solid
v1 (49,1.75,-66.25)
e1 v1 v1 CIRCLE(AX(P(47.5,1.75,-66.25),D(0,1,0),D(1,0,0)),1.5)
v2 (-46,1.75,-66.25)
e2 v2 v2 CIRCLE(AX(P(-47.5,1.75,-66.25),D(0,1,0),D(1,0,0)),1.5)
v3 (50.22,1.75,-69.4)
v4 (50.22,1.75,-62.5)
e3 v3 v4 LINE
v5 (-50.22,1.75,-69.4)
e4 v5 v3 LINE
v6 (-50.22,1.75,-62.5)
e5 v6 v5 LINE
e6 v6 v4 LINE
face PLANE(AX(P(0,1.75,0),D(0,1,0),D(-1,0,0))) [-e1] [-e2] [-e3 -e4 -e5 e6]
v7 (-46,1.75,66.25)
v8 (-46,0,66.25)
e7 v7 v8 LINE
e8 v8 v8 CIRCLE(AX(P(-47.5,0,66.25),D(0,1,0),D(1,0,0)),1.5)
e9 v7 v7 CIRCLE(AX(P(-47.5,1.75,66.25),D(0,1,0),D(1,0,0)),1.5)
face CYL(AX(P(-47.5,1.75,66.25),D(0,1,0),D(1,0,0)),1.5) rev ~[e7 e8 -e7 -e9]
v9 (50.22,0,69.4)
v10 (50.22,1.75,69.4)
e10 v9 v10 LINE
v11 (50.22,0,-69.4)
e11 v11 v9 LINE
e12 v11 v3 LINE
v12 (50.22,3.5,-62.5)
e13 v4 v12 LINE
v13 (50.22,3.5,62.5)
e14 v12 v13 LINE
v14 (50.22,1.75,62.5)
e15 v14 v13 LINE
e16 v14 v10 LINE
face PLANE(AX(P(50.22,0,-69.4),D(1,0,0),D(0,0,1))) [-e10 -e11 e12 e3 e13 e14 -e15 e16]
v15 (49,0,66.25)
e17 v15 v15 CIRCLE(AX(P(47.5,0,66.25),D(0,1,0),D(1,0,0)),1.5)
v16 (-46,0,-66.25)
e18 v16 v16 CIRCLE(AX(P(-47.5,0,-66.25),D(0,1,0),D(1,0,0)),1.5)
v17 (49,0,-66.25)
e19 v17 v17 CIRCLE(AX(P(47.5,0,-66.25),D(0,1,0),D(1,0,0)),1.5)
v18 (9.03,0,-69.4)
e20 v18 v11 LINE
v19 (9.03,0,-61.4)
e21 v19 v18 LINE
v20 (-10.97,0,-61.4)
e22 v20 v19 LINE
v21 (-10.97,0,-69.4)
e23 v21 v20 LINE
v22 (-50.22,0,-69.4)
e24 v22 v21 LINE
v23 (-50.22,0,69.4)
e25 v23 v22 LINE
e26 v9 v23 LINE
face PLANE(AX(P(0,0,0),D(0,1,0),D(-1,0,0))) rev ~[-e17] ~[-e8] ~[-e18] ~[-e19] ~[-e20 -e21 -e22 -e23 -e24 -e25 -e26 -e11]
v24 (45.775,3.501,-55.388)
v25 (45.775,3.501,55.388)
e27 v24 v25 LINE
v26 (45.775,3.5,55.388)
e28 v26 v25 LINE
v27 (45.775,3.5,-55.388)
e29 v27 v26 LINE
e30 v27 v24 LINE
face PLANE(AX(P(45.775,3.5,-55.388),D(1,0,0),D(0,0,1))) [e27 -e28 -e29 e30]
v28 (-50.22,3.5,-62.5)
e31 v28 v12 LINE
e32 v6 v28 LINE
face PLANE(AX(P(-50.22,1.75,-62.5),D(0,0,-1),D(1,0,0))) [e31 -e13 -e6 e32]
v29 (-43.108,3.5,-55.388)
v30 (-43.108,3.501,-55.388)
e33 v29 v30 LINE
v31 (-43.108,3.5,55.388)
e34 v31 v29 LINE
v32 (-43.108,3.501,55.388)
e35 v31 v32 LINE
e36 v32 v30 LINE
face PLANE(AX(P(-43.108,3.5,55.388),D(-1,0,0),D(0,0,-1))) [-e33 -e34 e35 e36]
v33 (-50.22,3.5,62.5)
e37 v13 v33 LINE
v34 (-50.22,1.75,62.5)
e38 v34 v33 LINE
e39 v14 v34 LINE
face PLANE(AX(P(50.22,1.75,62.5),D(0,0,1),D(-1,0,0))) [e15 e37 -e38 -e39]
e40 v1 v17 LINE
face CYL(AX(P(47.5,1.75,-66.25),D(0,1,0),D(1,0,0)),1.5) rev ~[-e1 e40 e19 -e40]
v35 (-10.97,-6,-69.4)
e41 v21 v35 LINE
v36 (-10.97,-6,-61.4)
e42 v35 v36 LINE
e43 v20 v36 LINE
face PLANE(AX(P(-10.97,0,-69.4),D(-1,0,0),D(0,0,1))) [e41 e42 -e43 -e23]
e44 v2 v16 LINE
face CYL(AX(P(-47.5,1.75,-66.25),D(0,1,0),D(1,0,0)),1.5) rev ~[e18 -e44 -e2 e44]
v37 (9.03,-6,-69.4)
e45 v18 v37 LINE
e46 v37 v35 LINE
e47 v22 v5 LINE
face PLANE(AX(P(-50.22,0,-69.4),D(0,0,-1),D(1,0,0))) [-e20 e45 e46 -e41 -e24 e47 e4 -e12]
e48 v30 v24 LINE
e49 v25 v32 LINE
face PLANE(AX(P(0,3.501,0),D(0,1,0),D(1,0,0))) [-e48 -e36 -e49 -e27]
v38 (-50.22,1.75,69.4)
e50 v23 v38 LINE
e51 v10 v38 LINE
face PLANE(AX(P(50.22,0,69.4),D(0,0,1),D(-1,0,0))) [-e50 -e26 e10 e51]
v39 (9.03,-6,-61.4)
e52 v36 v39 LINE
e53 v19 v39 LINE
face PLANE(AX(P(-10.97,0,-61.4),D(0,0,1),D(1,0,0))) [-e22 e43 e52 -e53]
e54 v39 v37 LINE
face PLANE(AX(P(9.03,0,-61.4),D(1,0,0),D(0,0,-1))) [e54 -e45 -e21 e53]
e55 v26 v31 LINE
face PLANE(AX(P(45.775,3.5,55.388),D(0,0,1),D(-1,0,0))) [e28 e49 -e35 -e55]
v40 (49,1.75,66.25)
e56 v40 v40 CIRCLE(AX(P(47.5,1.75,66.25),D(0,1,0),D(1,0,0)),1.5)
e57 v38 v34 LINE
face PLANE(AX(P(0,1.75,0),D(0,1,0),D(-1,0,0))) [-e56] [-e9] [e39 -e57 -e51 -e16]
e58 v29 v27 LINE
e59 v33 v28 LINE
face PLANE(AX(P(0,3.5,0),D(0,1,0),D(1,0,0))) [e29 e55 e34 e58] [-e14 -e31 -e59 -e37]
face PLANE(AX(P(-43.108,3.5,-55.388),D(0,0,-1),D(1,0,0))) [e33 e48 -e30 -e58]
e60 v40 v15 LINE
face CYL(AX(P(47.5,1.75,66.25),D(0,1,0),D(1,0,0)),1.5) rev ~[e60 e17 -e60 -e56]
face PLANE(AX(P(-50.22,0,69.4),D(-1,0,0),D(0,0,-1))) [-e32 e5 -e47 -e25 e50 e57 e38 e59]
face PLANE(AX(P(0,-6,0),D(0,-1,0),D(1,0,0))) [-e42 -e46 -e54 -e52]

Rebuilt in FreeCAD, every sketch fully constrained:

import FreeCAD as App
import Part
import Sketcher
from FreeCAD import Vector


def add_polygon(sketch, points):
    """Adds a closed chain of lines whose ends are joined by coincident constraints."""
    first, n = sketch.GeometryCount, len(points)
    for a, b in zip(points, points[1:] + points[:1]):
        sketch.addGeometry(Part.LineSegment(App.Vector(*a, 0), App.Vector(*b, 0)), False)
    for i in range(n):
        sketch.addConstraint(Sketcher.Constraint("Coincident", first + i, 2, first + (i + 1) % n, 1))

doc = App.newDocument("Part")
body = doc.addObject("PartDesign::Body", "Body")

# Sketch on XZ plane
sketch1 = body.newObject("Sketcher::SketchObject", "Sketch")
sketch1.AttachmentSupport = (doc.getObject("XZ_Plane"), [""])
sketch1.MapMode = "FlatFace"
add_polygon(sketch1, [(-50, 69), (50, 69), (50, -69), (-50, -69)])  # lines 0-3
sketch1.addConstraint([
    Sketcher.Constraint("Horizontal", 0),
    Sketcher.Constraint("Vertical", 1),
    Sketcher.Constraint("Horizontal", 2),
    Sketcher.Constraint("Vertical", 3),
    Sketcher.Constraint("Symmetric", 0, 2, 2, 2, -1, 1),
    Sketcher.Constraint("DistanceY", 1, 2, 1, 1, 138.8),
    Sketcher.Constraint("DistanceX", 0, 1, 0, 2, 100.44),
])
pad1 = body.newObject("PartDesign::Pad", "Pad")
pad1.Profile = sketch1
pad1.Length = 1.75
pad1.Reversed = True

# Sketch on XZ plane
sketch2 = body.newObject("Sketcher::SketchObject", "Sketch001")
sketch2.AttachmentSupport = (doc.getObject("XZ_Plane"), [""])
sketch2.MapMode = "FlatFace"
sketch2.AttachmentOffset = App.Placement(Vector(0, 0, -1.75), App.Rotation())
add_polygon(sketch2, [(-50, 62), (50, 62), (50, -62), (-50, -62)])  # lines 0-3
sketch2.addConstraint([
    Sketcher.Constraint("Horizontal", 0),
    Sketcher.Constraint("Vertical", 1),
    Sketcher.Constraint("Horizontal", 2),
    Sketcher.Constraint("Vertical", 3),
    Sketcher.Constraint("Symmetric", 0, 2, 2, 2, -1, 1),
    Sketcher.Constraint("DistanceY", 1, 2, 1, 1, 125.0),
    Sketcher.Constraint("DistanceX", 0, 1, 0, 2, 100.44),
])
pad2 = body.newObject("PartDesign::Pad", "Pad001")
pad2.Profile = sketch2
pad2.Length = 1.75
pad2.Reversed = True

# Sketch on XZ plane
sketch3 = body.newObject("Sketcher::SketchObject", "Sketch002")
sketch3.AttachmentSupport = (doc.getObject("XZ_Plane"), [""])
sketch3.MapMode = "FlatFace"
sketch3.AttachmentOffset = App.Placement(Vector(0, 0, -1.75), App.Rotation())
sketch3.addGeometry([
    Part.Circle(Vector(-47.5, 66.2, 0), Vector(0, 0, 1), 1.5),
    Part.Circle(Vector(47.5, 66.2, 0), Vector(0, 0, 1), 1.5),
    Part.Circle(Vector(-47.5, -66.2, 0), Vector(0, 0, 1), 1.5),
    Part.Circle(Vector(47.5, -66.2, 0), Vector(0, 0, 1), 1.5),
], False)
sketch3.addConstraint([
    Sketcher.Constraint("Equal", 0, 1),
    Sketcher.Constraint("Equal", 1, 2),
    Sketcher.Constraint("Equal", 2, 3),
    Sketcher.Constraint("Symmetric", 1, 3, 2, 3, -1, 1),
    Sketcher.Constraint("Symmetric", 0, 3, 3, 3, -1, 1),
    Sketcher.Constraint("Symmetric", 0, 3, 1, 3, -2),
    Sketcher.Constraint("Diameter", 0, 3.0),
    Sketcher.Constraint("DistanceX", 0, 3, -1, 1, 47.5),
    Sketcher.Constraint("DistanceY", 2, 3, 0, 3, 132.5),
])
pocket1 = body.newObject("PartDesign::Pocket", "Pocket")
pocket1.Profile = sketch3
pocket1.Type = "ThroughAll"
pocket1.Reversed = True

# Sketch on XZ plane
sketch4 = body.newObject("Sketcher::SketchObject", "Sketch003")
sketch4.AttachmentSupport = (doc.getObject("XZ_Plane"), [""])
sketch4.MapMode = "FlatFace"
add_polygon(sketch4, [(-11, -61), (-11, -69), (9, -69), (9, -61)])  # lines 0-3
sketch4.addConstraint([
    Sketcher.Constraint("Vertical", 0),
    Sketcher.Constraint("Horizontal", 1),
    Sketcher.Constraint("Vertical", 2),
    Sketcher.Constraint("Horizontal", 3),
    Sketcher.Constraint("DistanceX", 1, 1, 1, 2, 20.0),
    Sketcher.Constraint("DistanceY", 0, 2, 0, 1, 8.0),
    Sketcher.Constraint("DistanceY", 0, 2, -1, 1, 69.4),
    Sketcher.Constraint("DistanceX", 0, 2, -1, 1, 10.97),
])
pad3 = body.newObject("PartDesign::Pad", "Pad002")
pad3.Profile = sketch4
pad3.Length = 6

# Sketch on XZ plane
sketch5 = body.newObject("Sketcher::SketchObject", "Sketch004")
sketch5.AttachmentSupport = (doc.getObject("XZ_Plane"), [""])
sketch5.MapMode = "FlatFace"
sketch5.AttachmentOffset = App.Placement(Vector(0, 0, -3.5), App.Rotation())
add_polygon(sketch5, [(46, -55), (-43, -55), (-43, 55), (46, 55)])  # lines 0-3
sketch5.addConstraint([
    Sketcher.Constraint("Horizontal", 0),
    Sketcher.Constraint("Vertical", 1),
    Sketcher.Constraint("Horizontal", 2),
    Sketcher.Constraint("Vertical", 3),
    Sketcher.Constraint("DistanceX", 0, 2, 0, 1, 88.883),
    Sketcher.Constraint("DistanceY", 1, 1, 1, 2, 110.776),
    Sketcher.Constraint("DistanceX", 0, 2, -1, 1, 43.108),
    Sketcher.Constraint("DistanceY", 0, 2, -1, 1, 55.388),
])
pad4 = body.newObject("PartDesign::Pad", "Pad003")
pad4.Profile = sketch5
pad4.Length = 0.001
pad4.Reversed = True

doc.recompute()
